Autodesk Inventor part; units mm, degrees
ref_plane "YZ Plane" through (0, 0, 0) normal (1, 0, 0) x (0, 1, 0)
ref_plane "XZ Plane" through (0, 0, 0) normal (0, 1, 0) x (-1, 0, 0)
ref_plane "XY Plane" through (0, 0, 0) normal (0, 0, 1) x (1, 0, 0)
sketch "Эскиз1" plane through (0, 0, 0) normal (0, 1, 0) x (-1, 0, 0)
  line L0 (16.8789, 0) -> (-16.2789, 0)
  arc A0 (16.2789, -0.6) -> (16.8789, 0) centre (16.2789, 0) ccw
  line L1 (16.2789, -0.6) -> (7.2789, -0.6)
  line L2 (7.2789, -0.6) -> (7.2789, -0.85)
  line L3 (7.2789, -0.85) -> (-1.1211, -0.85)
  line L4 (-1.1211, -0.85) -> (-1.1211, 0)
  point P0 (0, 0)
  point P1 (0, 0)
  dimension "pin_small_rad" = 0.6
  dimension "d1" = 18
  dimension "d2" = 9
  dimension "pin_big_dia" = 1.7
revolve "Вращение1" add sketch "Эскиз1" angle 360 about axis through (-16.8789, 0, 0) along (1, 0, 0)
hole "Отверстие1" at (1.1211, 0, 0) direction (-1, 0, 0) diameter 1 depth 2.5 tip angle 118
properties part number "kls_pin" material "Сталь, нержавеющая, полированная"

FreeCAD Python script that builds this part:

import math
import FreeCAD as App
import Part
import Sketcher

V = App.Vector

doc = App.newDocument("Part")
body = doc.addObject("PartDesign::Body", "Body")

# Sketch on XZ plane
sketch1 = body.newObject("Sketcher::SketchObject", "Sketch")
sketch1.AttachmentSupport = (doc.getObject("XZ_Plane"), [""])
sketch1.MapMode = "FlatFace"
sketch1.addGeometry(Part.ArcOfCircle(Part.Circle(V(-16.2789, 0, 0), V(0, 0, 1), 0.6), math.radians(180), math.radians(270)), False)
sketch1.addGeometry(Part.LineSegment(V(-16.8789, 0, 0), V(1.1211, 0, 0)), False)
sketch1.addGeometry(Part.LineSegment(V(1.1211, 0, 0), V(1.1211, -0.85, 0)), False)
sketch1.addGeometry(Part.LineSegment(V(1.1211, -0.85, 0), V(-7.2789, -0.85, 0)), False)
sketch1.addGeometry(Part.LineSegment(V(-7.2789, -0.85, 0), V(-7.2789, -0.6, 0)), False)
sketch1.addGeometry(Part.LineSegment(V(-7.2789, -0.6, 0), V(-16.2789, -0.6, 0)), False)
sketch1.addConstraint(Sketcher.Constraint("Coincident", 0, 1, 1, 1))
sketch1.addConstraint(Sketcher.Constraint("Coincident", 1, 2, 2, 1))
sketch1.addConstraint(Sketcher.Constraint("Coincident", 2, 2, 3, 1))
sketch1.addConstraint(Sketcher.Constraint("Coincident", 3, 2, 4, 1))
sketch1.addConstraint(Sketcher.Constraint("Coincident", 4, 2, 5, 1))
sketch1.addConstraint(Sketcher.Constraint("Tangent", 5, 2, 0, 2))
sketch1.addConstraint(Sketcher.Constraint("Horizontal", 1))
sketch1.addConstraint(Sketcher.Constraint("Vertical", 2))
sketch1.addConstraint(Sketcher.Constraint("Horizontal", 3))
sketch1.addConstraint(Sketcher.Constraint("Vertical", 4))
sketch1.addConstraint(Sketcher.Constraint("Horizontal", 5))
sketch1.addConstraint(Sketcher.Constraint("PointOnObject", 0, 3, -1))
sketch1.addConstraint(Sketcher.Constraint("PointOnObject", 0, 1, -1))
sketch1.addConstraint(Sketcher.Constraint("Radius", 0, 0.6))
sketch1.addConstraint(Sketcher.Constraint("DistanceX", 1, 1, 1, 2, 18.0))
sketch1.addConstraint(Sketcher.Constraint("DistanceX", 5, 2, 5, 1, 9.0))
sketch1.addConstraint(Sketcher.Constraint("DistanceY", 2, 2, 2, 1, 0.85))
sketch1.addConstraint(Sketcher.Constraint("DistanceX", 0, 3, -1, 1, 16.279))
revolution = body.newObject("PartDesign::Revolution", "Revolution")
revolution.Profile = sketch1
revolution.ReferenceAxis = (sketch1, ["H_Axis"])
revolution.Angle = 360

# Sketch on YZ plane
sketch2 = body.newObject("Sketcher::SketchObject", "Sketch001")
sketch2.AttachmentSupport = (doc.getObject("YZ_Plane"), [""])
sketch2.MapMode = "FlatFace"
sketch2.AttachmentOffset = App.Placement(V(0, 0, 1.1211), App.Rotation())
sketch2.addGeometry(Part.Circle(V(0, 0, 0), V(0, 0, 1), 0.5), False)
sketch2.addConstraint(Sketcher.Constraint("Coincident", 0, 3, -1, 1))
sketch2.addConstraint(Sketcher.Constraint("Diameter", 0, 1.0))
doc.recompute()
hole = body.newObject("PartDesign::Hole", "Hole")
hole.Profile = sketch2
hole.ThreadType = "None"
hole.Diameter = 1
hole.DepthType = "Dimension"
hole.Depth = 2.5
hole.DrillPoint = "Angled"
hole.DrillPointAngle = 118

doc.recompute()
